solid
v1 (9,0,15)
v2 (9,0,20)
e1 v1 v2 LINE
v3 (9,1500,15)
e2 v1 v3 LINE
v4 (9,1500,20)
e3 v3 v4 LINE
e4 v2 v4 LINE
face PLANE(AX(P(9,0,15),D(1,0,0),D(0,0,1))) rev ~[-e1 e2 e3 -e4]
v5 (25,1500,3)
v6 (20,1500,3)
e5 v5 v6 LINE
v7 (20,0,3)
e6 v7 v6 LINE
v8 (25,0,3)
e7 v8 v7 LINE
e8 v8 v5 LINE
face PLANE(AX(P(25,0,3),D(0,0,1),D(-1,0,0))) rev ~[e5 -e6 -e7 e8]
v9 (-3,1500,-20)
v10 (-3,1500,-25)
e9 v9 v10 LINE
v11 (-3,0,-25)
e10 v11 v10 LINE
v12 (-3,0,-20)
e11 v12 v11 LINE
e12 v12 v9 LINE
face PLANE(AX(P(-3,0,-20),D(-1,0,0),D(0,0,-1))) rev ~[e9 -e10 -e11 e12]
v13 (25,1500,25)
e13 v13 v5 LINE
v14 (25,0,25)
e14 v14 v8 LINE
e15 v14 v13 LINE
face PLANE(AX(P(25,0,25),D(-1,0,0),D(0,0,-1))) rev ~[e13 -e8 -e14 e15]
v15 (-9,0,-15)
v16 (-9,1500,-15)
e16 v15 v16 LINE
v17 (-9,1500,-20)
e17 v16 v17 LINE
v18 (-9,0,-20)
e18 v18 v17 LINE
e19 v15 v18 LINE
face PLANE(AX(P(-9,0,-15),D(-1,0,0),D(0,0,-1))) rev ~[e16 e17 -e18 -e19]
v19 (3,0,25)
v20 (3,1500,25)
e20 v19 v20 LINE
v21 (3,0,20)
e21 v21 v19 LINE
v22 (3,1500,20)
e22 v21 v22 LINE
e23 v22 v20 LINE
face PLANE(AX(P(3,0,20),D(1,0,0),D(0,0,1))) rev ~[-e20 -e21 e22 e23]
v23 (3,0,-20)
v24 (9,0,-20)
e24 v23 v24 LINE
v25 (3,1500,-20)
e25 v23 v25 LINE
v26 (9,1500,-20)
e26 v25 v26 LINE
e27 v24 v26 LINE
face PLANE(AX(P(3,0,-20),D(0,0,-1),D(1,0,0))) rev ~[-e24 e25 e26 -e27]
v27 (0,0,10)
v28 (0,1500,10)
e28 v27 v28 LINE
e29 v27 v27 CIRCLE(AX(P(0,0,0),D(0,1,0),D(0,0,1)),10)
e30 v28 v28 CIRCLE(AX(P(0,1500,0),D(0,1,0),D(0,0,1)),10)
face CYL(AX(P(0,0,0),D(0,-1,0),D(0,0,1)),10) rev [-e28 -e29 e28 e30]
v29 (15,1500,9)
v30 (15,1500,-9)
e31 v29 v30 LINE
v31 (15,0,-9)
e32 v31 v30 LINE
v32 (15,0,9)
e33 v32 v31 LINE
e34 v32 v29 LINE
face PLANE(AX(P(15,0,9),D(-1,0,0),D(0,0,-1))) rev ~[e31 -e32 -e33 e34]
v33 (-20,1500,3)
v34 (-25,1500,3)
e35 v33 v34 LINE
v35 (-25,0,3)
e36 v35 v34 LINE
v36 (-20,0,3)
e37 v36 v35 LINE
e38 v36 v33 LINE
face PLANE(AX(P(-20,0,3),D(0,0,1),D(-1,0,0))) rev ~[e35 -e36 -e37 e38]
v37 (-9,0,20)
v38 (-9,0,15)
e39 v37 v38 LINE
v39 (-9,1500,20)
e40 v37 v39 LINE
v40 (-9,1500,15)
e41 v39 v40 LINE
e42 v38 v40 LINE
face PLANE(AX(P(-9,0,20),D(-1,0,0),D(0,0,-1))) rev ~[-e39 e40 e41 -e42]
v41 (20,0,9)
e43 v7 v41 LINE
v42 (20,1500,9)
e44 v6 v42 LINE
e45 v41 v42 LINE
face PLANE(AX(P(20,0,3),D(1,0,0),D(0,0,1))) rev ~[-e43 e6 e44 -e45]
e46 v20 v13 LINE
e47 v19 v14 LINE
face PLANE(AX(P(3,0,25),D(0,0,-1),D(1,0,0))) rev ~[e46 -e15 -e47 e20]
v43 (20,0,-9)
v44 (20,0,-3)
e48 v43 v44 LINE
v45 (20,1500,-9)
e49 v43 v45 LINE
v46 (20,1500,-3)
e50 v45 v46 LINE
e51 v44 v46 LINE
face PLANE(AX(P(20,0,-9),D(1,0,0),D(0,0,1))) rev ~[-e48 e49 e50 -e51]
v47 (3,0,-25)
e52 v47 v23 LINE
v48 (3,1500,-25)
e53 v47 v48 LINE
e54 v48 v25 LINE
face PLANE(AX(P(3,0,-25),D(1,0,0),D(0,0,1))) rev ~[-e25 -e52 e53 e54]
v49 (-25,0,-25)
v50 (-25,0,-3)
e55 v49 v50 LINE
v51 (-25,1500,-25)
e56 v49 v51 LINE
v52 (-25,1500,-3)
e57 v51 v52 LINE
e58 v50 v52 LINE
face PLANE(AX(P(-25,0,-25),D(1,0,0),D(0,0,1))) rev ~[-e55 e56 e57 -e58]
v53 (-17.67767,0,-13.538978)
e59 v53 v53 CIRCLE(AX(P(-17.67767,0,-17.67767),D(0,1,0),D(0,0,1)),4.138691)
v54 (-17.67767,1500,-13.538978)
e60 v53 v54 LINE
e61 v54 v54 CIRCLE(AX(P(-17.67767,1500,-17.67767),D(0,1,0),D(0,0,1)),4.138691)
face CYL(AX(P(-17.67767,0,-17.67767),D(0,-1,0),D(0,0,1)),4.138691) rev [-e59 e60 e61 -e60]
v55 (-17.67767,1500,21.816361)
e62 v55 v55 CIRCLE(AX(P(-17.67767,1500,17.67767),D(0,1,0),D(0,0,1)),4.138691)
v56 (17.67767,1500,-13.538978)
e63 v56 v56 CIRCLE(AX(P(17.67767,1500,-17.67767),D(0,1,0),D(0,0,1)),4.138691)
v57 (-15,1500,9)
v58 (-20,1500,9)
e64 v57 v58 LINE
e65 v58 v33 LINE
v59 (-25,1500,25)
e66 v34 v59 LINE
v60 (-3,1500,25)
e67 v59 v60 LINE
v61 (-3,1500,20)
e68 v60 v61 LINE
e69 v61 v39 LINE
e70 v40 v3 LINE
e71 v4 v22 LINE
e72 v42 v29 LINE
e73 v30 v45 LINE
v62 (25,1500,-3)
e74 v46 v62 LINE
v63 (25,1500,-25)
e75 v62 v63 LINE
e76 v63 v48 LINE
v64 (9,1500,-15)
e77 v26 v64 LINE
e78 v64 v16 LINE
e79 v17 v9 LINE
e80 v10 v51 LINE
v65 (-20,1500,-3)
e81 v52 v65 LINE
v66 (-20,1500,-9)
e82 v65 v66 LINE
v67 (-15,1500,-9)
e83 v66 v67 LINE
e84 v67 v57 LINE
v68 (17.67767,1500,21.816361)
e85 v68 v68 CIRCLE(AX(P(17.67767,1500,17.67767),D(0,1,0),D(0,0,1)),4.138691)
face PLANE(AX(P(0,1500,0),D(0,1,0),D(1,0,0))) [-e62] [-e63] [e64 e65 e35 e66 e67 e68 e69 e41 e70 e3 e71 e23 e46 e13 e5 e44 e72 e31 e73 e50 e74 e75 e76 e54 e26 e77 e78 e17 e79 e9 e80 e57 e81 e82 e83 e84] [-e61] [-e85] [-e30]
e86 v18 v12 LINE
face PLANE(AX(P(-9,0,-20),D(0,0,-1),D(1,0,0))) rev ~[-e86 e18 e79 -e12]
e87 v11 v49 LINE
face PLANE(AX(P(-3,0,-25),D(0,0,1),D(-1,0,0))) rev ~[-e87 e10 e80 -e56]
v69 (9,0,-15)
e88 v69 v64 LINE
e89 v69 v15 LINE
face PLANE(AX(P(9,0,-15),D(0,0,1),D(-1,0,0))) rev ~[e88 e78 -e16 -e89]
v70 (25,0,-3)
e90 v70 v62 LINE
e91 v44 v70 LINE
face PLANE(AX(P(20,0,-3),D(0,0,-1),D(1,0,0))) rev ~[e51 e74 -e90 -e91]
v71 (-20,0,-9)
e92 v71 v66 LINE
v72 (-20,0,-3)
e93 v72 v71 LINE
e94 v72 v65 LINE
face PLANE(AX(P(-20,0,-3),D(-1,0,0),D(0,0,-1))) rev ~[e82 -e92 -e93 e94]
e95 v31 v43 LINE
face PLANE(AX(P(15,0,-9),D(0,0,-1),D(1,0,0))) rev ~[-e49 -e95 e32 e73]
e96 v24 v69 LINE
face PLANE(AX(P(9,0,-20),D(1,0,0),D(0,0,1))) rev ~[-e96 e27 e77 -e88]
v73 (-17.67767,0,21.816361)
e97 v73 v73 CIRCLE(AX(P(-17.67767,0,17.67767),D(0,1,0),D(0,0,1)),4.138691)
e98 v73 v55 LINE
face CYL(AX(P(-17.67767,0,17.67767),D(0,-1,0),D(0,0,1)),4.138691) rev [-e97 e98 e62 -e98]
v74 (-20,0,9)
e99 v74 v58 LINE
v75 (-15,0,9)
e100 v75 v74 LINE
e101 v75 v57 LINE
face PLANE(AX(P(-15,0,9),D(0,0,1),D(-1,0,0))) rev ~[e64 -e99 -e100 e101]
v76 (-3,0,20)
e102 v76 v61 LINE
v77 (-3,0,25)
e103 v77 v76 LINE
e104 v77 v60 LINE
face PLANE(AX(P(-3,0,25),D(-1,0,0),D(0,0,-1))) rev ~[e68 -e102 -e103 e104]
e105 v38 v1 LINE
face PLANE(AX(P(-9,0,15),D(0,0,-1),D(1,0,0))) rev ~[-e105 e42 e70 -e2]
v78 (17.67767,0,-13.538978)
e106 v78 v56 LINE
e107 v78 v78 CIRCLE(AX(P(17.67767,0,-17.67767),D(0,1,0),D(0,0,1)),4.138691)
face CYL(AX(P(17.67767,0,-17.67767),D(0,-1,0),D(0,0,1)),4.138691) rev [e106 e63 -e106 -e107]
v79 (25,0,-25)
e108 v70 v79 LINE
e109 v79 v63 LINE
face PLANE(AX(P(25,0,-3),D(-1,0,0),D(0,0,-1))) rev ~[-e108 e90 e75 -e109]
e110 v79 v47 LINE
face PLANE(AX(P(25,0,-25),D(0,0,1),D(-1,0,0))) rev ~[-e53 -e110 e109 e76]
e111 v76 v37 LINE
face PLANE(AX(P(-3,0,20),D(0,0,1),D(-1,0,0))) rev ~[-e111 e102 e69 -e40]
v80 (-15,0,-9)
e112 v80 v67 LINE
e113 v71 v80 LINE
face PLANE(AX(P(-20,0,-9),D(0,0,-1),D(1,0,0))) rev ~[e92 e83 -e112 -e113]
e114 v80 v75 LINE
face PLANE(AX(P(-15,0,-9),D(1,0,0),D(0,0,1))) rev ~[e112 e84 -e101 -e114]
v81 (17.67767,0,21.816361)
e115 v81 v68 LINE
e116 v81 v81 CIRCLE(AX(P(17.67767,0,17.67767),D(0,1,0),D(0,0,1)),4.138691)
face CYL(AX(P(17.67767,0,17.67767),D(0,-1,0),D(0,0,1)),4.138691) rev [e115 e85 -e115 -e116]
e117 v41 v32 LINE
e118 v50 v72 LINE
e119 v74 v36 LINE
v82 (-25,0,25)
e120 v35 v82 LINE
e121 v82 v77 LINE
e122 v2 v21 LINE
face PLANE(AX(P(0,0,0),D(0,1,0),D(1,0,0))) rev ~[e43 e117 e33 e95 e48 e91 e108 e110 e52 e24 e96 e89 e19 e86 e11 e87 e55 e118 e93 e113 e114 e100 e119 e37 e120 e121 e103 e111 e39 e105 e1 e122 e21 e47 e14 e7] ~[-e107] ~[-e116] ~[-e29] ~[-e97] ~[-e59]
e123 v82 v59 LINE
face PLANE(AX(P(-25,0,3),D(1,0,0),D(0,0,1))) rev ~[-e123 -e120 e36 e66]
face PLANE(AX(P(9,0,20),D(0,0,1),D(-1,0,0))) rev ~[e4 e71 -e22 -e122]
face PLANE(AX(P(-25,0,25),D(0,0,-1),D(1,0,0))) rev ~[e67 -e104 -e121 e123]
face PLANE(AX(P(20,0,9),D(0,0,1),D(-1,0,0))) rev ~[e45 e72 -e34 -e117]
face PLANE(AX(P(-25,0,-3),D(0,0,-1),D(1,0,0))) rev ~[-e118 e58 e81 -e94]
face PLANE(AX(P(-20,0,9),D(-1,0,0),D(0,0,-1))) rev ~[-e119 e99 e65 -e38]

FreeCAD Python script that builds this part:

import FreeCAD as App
import Part
import Sketcher

V = App.Vector
Q = App.Units.Quantity


def add_polygon(sketch, points):
    """Adds a closed chain of lines whose ends are joined by coincident constraints."""
    first, n = sketch.GeometryCount, len(points)
    for a, b in zip(points, points[1:] + points[:1]):
        sketch.addGeometry(Part.LineSegment(App.Vector(*a, 0), App.Vector(*b, 0)), False)
    for i in range(n):
        sketch.addConstraint(Sketcher.Constraint("Coincident", first + i, 2, first + (i + 1) % n, 1))

doc = App.newDocument("Part")
body = doc.addObject("PartDesign::Body", "Body")

sketch1 = doc.addObject("Sketcher::SketchObject", "Sketch")
body.addObject(sketch1)
sketch1.AttachmentSupport = (doc.XZ_Plane, [""])
sketch1.MapMode = "FlatFace"
add_polygon(sketch1, [(-25, 3), (-25, 25), (-3, 25), (-3, 20), (-9, 20), (-9, 15), (9, 15), (9, 20), (3, 20), (3, 25), (25, 25), (25, 3), (20, 3), (20, 9), (15, 9), (15, -9), (20, -9), (20, -3), (25, -3), (25, -25), (3, -25), (3, -20), (9, -20), (9, -15), (-9, -15), (-9, -20), (-3, -20), (-3, -25), (-25, -25), (-25, -3), (-20, -3), (-20, -9), (-15, -9), (-15, 9), (-20, 9), (-20, 3)])
sketch1.addGeometry(Part.Circle(V(-17.7, 17.7, 0), V(0, 0, 1), 4.1), False)
sketch1.addGeometry(Part.Circle(V(17.7, 17.7, 0), V(0, 0, 1), 4.1), False)
sketch1.addGeometry(Part.Circle(V(-17.7, -17.7, 0), V(0, 0, 1), 4.1), False)
sketch1.addGeometry(Part.Circle(V(0, 0, 0), V(0, 0, 1), 10), False)
sketch1.addGeometry(Part.Circle(V(17.7, -17.7, 0), V(0, 0, 1), 4.1), False)
sketch1.addConstraint([
    Sketcher.Constraint("Vertical", 0),
    Sketcher.Constraint("Horizontal", 1),
    Sketcher.Constraint("Vertical", 2),
    Sketcher.Constraint("Horizontal", 3),
    Sketcher.Constraint("Vertical", 4),
    Sketcher.Constraint("Horizontal", 5),
    Sketcher.Constraint("Vertical", 6),
    Sketcher.Constraint("Horizontal", 7),
    Sketcher.Constraint("Vertical", 8),
    Sketcher.Constraint("Horizontal", 9),
    Sketcher.Constraint("Vertical", 10),
    Sketcher.Constraint("Horizontal", 11),
    Sketcher.Constraint("Vertical", 12),
    Sketcher.Constraint("Horizontal", 13),
    Sketcher.Constraint("Vertical", 14),
    Sketcher.Constraint("Horizontal", 15),
    Sketcher.Constraint("Vertical", 16),
    Sketcher.Constraint("Horizontal", 17),
    Sketcher.Constraint("Vertical", 18),
    Sketcher.Constraint("Horizontal", 19),
    Sketcher.Constraint("Vertical", 20),
    Sketcher.Constraint("Horizontal", 21),
    Sketcher.Constraint("Vertical", 22),
    Sketcher.Constraint("Horizontal", 23),
    Sketcher.Constraint("Vertical", 24),
    Sketcher.Constraint("Horizontal", 25),
    Sketcher.Constraint("Vertical", 26),
    Sketcher.Constraint("Horizontal", 27),
    Sketcher.Constraint("Vertical", 28),
    Sketcher.Constraint("Horizontal", 29),
    Sketcher.Constraint("Vertical", 30),
    Sketcher.Constraint("Horizontal", 31),
    Sketcher.Constraint("Vertical", 32),
    Sketcher.Constraint("Horizontal", 33),
    Sketcher.Constraint("Vertical", 34),
    Sketcher.Constraint("Horizontal", 35),
    Sketcher.Constraint("Coincident", 39, 3, -1, 1),
    Sketcher.Constraint("Equal", 36, 37),
    Sketcher.Constraint("Equal", 37, 38),
    Sketcher.Constraint("Equal", 38, 40),
    Sketcher.Constraint("Symmetric", 37, 3, 38, 3, -1, 1),
    Sketcher.Constraint("Symmetric", 36, 3, 40, 3, -1, 1),
    Sketcher.Constraint("Symmetric", 0, 2, 18, 2, -1, 1),
    Sketcher.Constraint("Symmetric", 2, 2, 20, 2, -1, 1),
    Sketcher.Constraint("Symmetric", 4, 2, 22, 2, -1, 1),
    Sketcher.Constraint("Symmetric", 6, 2, 24, 2, -1, 1),
    Sketcher.Constraint("Symmetric", 8, 2, 26, 2, -1, 1),
    Sketcher.Constraint("Symmetric", 10, 2, 28, 2, -1, 1),
    Sketcher.Constraint("Symmetric", 12, 2, 30, 2, -1, 1),
    Sketcher.Constraint("Symmetric", 14, 2, 32, 2, -1, 1),
    Sketcher.Constraint("Symmetric", 16, 2, 34, 2, -1, 1),
    Sketcher.Constraint("Symmetric", 36, 3, 37, 3, -2),
    Sketcher.Constraint("Symmetric", 3, 2, 6, 2, -2),
    Sketcher.Constraint("Symmetric", 1, 2, 8, 2, -2),
    Sketcher.Constraint("Symmetric", 17, 2, 28, 2, -2),
    Sketcher.Constraint("Symmetric", 15, 2, 30, 2, -2),
    Sketcher.Constraint("Equal", 11, 13),
    Sketcher.Constraint("Equal", 27, 0),
    Sketcher.Constraint("Equal", 35, 2),
    Sketcher.Constraint("Equal", 2, 4),
    Sketcher.Constraint("Equal", 25, 12),
    Sketcher.Constraint("Equal", 23, 14),
    Sketcher.Constraint("Diameter", 39, Q("20 mm")),
    Sketcher.Constraint("DistanceX", 1, 1, 1, 2, Q("22 mm")),
    Sketcher.Constraint("DistanceX", 3, 2, 3, 1, Q("6 mm")),
    Sketcher.Constraint("DistanceX", 5, 1, 5, 2, Q("18 mm")),
    Sketcher.Constraint("DistanceX", 11, 2, 11, 1, Q("5 mm")),
    Sketcher.Constraint("Diameter", 36, Q("8.277382 mm")),
    Sketcher.Constraint("DistanceX", 36, 3, -1, 1, Q("17.67767 mm")),
    Sketcher.Constraint("DistanceY", -1, 1, 36, 3, Q("17.67767 mm")),
])
pad1 = doc.addObject("PartDesign::Pad", "Pad")
body.addObject(pad1)
pad1.Profile = sketch1
pad1.Length = 1500
pad1.Reversed = True

doc.recompute()
